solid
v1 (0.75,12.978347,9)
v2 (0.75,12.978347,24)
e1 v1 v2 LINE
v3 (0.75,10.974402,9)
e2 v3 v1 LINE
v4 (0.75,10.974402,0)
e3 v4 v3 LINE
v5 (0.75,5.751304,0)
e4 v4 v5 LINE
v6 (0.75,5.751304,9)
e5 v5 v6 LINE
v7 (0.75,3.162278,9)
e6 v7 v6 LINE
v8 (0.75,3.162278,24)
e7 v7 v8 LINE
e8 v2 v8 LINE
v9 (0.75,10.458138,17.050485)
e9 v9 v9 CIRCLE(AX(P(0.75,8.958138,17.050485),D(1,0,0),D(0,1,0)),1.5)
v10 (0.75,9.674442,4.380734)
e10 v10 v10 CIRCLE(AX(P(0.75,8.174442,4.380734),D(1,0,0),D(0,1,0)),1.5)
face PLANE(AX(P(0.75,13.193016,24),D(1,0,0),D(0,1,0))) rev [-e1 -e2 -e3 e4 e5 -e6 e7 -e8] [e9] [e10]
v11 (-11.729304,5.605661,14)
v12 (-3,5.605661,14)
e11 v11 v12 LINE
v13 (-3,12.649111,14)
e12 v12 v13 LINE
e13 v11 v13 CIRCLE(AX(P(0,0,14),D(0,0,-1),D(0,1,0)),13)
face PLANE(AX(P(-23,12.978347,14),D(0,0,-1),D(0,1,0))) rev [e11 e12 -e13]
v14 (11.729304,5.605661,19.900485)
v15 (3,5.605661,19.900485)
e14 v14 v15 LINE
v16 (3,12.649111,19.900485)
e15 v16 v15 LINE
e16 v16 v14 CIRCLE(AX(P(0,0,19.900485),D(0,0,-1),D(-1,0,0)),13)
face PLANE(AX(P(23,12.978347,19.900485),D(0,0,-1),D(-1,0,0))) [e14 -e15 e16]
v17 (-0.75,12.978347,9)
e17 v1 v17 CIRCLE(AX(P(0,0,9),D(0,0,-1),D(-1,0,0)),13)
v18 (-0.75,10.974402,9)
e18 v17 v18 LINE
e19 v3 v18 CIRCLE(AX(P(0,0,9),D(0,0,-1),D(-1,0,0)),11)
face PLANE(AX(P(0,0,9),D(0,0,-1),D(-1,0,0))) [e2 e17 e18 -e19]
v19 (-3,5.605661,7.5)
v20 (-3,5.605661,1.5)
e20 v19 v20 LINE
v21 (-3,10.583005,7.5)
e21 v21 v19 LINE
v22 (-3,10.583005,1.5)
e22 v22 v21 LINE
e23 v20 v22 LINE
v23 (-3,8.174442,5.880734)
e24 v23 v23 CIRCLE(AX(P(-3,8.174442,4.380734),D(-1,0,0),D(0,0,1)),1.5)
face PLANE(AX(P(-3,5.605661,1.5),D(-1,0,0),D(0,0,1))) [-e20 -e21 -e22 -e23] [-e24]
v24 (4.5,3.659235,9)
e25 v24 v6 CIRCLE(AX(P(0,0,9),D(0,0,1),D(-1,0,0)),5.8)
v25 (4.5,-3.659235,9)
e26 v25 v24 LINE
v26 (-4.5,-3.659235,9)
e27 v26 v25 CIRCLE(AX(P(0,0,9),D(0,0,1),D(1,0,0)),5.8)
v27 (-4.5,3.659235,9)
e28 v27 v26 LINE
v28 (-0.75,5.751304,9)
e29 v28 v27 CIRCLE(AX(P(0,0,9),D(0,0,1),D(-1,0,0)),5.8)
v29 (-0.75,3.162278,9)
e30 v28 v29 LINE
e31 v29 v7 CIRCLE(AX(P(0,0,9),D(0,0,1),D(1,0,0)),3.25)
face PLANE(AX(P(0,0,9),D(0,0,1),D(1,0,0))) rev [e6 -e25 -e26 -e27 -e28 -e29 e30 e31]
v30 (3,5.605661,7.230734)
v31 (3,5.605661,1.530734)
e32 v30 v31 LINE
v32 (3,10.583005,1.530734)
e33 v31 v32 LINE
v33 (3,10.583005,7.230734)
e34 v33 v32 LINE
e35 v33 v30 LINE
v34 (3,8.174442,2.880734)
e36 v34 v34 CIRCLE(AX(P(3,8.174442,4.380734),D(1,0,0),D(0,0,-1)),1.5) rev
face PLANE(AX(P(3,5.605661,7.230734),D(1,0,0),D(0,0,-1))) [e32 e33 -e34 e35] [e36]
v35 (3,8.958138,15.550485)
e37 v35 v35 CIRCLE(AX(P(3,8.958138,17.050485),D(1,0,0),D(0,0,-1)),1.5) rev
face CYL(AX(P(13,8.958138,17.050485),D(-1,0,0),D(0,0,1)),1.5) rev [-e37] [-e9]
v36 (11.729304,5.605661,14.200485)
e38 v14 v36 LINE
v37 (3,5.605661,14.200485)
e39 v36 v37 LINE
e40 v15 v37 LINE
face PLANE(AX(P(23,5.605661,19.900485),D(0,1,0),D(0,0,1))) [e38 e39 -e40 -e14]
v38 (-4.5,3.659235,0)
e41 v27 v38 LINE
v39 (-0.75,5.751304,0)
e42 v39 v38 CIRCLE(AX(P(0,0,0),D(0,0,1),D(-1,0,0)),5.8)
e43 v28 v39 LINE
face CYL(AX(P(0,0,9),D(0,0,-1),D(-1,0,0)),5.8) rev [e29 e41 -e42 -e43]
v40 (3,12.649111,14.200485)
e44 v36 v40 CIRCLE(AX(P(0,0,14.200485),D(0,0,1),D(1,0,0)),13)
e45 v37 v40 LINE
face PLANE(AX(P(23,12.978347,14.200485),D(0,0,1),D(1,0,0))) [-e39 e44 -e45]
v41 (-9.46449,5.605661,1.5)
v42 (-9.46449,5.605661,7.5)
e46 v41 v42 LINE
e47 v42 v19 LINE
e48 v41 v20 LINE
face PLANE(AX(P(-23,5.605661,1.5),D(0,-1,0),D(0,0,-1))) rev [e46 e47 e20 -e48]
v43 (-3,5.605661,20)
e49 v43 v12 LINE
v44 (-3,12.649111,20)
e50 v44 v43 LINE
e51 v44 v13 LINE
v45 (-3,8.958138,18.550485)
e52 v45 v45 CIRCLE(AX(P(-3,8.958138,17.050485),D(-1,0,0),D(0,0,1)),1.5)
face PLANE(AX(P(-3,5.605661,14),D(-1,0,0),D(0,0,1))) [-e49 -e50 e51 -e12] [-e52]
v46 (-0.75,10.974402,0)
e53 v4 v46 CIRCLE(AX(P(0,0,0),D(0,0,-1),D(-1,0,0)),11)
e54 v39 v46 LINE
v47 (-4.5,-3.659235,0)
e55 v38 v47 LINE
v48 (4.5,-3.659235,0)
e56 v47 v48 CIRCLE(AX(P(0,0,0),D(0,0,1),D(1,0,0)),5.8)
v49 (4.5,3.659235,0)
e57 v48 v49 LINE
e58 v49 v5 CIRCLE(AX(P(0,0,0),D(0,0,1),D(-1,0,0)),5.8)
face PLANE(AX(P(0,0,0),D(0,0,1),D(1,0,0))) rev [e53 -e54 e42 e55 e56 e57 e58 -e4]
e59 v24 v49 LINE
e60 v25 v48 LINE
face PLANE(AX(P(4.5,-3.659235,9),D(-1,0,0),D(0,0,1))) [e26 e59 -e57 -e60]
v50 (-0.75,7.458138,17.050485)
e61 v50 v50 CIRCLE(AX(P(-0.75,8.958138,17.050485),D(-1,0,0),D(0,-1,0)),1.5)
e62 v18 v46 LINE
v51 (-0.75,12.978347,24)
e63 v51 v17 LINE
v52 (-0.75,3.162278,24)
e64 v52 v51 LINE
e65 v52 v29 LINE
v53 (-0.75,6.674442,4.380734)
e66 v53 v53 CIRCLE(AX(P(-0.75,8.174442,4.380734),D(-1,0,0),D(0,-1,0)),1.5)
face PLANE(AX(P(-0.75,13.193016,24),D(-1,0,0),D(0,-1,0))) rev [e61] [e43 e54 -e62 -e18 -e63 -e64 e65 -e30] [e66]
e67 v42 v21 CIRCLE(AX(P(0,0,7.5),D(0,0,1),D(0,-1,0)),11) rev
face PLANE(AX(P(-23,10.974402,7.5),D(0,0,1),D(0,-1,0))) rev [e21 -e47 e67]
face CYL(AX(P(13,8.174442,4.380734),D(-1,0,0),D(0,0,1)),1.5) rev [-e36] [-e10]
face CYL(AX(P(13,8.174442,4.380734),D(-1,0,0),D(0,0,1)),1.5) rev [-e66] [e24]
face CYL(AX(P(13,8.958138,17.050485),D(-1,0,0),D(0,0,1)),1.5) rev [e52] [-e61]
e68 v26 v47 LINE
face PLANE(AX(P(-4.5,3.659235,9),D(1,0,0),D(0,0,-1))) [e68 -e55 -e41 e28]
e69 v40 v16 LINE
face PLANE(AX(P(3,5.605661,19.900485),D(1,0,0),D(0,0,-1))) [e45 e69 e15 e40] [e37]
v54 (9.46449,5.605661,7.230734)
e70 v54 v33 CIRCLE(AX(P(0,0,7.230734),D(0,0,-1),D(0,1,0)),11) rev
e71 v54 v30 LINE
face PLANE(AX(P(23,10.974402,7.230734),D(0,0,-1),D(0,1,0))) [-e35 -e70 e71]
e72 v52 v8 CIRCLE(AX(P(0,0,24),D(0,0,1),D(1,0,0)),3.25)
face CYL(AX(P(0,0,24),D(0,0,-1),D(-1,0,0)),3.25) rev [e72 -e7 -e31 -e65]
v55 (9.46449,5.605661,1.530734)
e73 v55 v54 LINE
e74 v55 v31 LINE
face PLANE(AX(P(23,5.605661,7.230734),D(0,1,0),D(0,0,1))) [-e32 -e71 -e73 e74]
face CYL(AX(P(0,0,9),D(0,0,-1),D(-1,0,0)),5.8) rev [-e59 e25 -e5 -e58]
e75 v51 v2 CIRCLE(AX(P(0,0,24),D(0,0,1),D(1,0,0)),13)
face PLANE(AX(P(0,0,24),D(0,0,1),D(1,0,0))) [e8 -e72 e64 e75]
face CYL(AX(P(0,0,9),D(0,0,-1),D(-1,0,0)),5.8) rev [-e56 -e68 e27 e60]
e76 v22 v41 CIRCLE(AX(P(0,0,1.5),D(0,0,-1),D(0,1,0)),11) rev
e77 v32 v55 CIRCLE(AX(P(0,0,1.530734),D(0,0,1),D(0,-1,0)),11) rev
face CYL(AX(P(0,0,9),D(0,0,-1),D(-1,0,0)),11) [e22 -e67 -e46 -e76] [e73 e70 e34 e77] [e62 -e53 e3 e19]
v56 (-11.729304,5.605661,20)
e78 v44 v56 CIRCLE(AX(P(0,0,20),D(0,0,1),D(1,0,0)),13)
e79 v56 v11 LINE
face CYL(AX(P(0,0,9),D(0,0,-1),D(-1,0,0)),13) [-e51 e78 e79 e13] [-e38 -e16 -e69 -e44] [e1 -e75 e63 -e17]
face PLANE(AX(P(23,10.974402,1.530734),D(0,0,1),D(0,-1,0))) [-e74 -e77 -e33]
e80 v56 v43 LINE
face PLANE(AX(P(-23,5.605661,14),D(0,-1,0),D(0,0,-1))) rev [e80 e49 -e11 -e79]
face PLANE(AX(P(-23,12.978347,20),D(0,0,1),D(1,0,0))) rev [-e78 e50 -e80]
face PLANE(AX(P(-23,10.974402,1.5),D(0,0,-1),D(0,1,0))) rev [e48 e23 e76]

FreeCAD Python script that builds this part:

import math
import FreeCAD as App
import Part
import Sketcher
from FreeCAD import Vector
Q = App.Units.Quantity


def add_polygon(sketch, points):
    """Adds a closed chain of lines whose ends are joined by coincident constraints."""
    first, n = sketch.GeometryCount, len(points)
    for a, b in zip(points, points[1:] + points[:1]):
        sketch.addGeometry(Part.LineSegment(App.Vector(*a, 0), App.Vector(*b, 0)), False)
    for i in range(n):
        sketch.addConstraint(Sketcher.Constraint("Coincident", first + i, 2, first + (i + 1) % n, 1))

doc = App.newDocument("Part")
body = doc.addObject("PartDesign::Body", "Body")

# Sketch on XY plane
sketch1 = doc.addObject("Sketcher::SketchObject", "Sketch")
body.addObject(sketch1)
sketch1.AttachmentSupport = (doc.XY_Plane, [""])
sketch1.MapMode = "FlatFace"
sketch1.addGeometry(Part.Circle(Vector(0, 0, 0), Vector(0, 0, 1), 13), False)
sketch1.addGeometry(Part.LineSegment(Vector(-4.5, -3.659235, 0), Vector(-4.5, 3.659235, 0)), False)
sketch1.addGeometry(Part.ArcOfCircle(Part.Circle(Vector(0, 0, 0), Vector(0, 0, 1), 5.8), math.radians(39.116744), math.radians(140.883256)), False)
sketch1.addGeometry(Part.LineSegment(Vector(4.5, 3.659235, 0), Vector(4.5, -3.659235, 0)), False)
sketch1.addGeometry(Part.ArcOfCircle(Part.Circle(Vector(0, 0, 0), Vector(0, 0, 1), 5.8), math.radians(-140.883256), math.radians(-39.116744)), False)
sketch1.addConstraint(Sketcher.Constraint("Coincident", 1, 2, 2, 2))
sketch1.addConstraint(Sketcher.Constraint("Coincident", 2, 1, 3, 1))
sketch1.addConstraint(Sketcher.Constraint("Coincident", 3, 2, 4, 2))
sketch1.addConstraint(Sketcher.Constraint("Coincident", 4, 1, 1, 1))
sketch1.addConstraint(Sketcher.Constraint("Vertical", 1))
sketch1.addConstraint(Sketcher.Constraint("Vertical", 3))
sketch1.addConstraint(Sketcher.Constraint("Coincident", 0, 3, -1, 1))
sketch1.addConstraint(Sketcher.Constraint("Coincident", 2, 3, -1, 1))
sketch1.addConstraint(Sketcher.Constraint("Coincident", 4, 3, -1, 1))
sketch1.addConstraint(Sketcher.Constraint("Equal", 2, 4))
sketch1.addConstraint(Sketcher.Constraint("Horizontal", 1, 2, 2, 1))
sketch1.addConstraint(Sketcher.Constraint("Diameter", 0, Q("26 mm")))
sketch1.addConstraint(Sketcher.Constraint("Radius", 2, Q("5.8 mm")))
sketch1.addConstraint(Sketcher.Constraint("DistanceX", 1, 2, 2, 1, Q("9 mm")))
pad1 = doc.addObject("PartDesign::Pad", "Pad")
body.addObject(pad1)
pad1.Profile = sketch1
pad1.Length = 9

# Sketch on XY plane
sketch2 = doc.addObject("Sketcher::SketchObject", "Sketch001")
body.addObject(sketch2)
sketch2.AttachmentSupport = (doc.XY_Plane, [""])
sketch2.MapMode = "FlatFace"
sketch2.AttachmentOffset = App.Placement(Vector(0, 0, 9), App.Rotation())
sketch2.addGeometry(Part.Circle(Vector(0, 0, 0), Vector(0, 0, 1), 13), False)
sketch2.addGeometry(Part.Circle(Vector(0, 0, 0), Vector(0, 0, 1), 3.25), False)
sketch2.addConstraint(Sketcher.Constraint("Coincident", 0, 3, -1, 1))
sketch2.addConstraint(Sketcher.Constraint("Coincident", 1, 3, -1, 1))
sketch2.addConstraint(Sketcher.Constraint("Diameter", 0, Q("26 mm")))
sketch2.addConstraint(Sketcher.Constraint("Diameter", 1, Q("6.5 mm")))
pad2 = doc.addObject("PartDesign::Pad", "Pad001")
body.addObject(pad2)
pad2.Profile = sketch2
pad2.Length = 15

# Sketch on XY plane
sketch3 = doc.addObject("Sketcher::SketchObject", "Sketch002")
body.addObject(sketch3)
sketch3.AttachmentSupport = (doc.XY_Plane, [""])
sketch3.MapMode = "FlatFace"
add_polygon(sketch3, [(0.75, 13.193016), (0.75, 1.56659), (-0.75, 1.56659), (-0.75, 13.193016)])  # lines 0-3
sketch3.addConstraint(Sketcher.Constraint("Vertical", 0))
sketch3.addConstraint(Sketcher.Constraint("Horizontal", 1))
sketch3.addConstraint(Sketcher.Constraint("Vertical", 2))
sketch3.addConstraint(Sketcher.Constraint("Horizontal", 3))
sketch3.addConstraint(Sketcher.Constraint("DistanceX", 1, 2, 1, 1, Q("1.5 mm")))
sketch3.addConstraint(Sketcher.Constraint("DistanceX", -1, 1, 0, 2, Q("0.75 mm")))
sketch3.addConstraint(Sketcher.Constraint("DistanceY", 0, 2, 0, 1, Q("11.626427 mm")))
sketch3.addConstraint(Sketcher.Constraint("DistanceY", -1, 1, 0, 2, Q("1.56659 mm")))
pocket1 = doc.addObject("PartDesign::Pocket", "Pocket")
body.addObject(pocket1)
pocket1.Profile = sketch3
pocket1.Type = "ThroughAll"
pocket1.Reversed = True

# Sketch on XY plane
sketch4 = doc.addObject("Sketcher::SketchObject", "Sketch003")
body.addObject(sketch4)
sketch4.AttachmentSupport = (doc.XY_Plane, [""])
sketch4.MapMode = "FlatFace"
sketch4.addGeometry(Part.Circle(Vector(0, 0, 0), Vector(0, 0, 1), 16.638235), False)
sketch4.addGeometry(Part.Circle(Vector(0, 0, 0), Vector(0, 0, 1), 11), False)
sketch4.addConstraint(Sketcher.Constraint("Coincident", 0, 3, -1, 1))
sketch4.addConstraint(Sketcher.Constraint("Coincident", 1, 3, -1, 1))
sketch4.addConstraint(Sketcher.Constraint("Diameter", 1, Q("22 mm")))
sketch4.addConstraint(Sketcher.Constraint("Diameter", 0, Q("33.27647 mm")))
pocket2 = doc.addObject("PartDesign::Pocket", "Pocket001")
body.addObject(pocket2)
pocket2.Profile = sketch4
pocket2.Length = 9
pocket2.Reversed = True

# Sketch on YZ plane
sketch5 = doc.addObject("Sketcher::SketchObject", "Sketch004")
body.addObject(sketch5)
sketch5.AttachmentSupport = (doc.YZ_Plane, [""])
sketch5.MapMode = "FlatFace"
sketch5.AttachmentOffset = App.Placement(Vector(0, 0, -3), App.Rotation())
add_polygon(sketch5, [(10.974402, 7.5), (5.605661, 7.5), (5.605661, 1.5), (10.974402, 1.5)])  # lines 0-3
add_polygon(sketch5, [(12.978347, 20), (5.605661, 20), (5.605661, 14), (12.978347, 14)])  # lines 4-7
sketch5.addConstraint(Sketcher.Constraint("Horizontal", 0))
sketch5.addConstraint(Sketcher.Constraint("Vertical", 1))
sketch5.addConstraint(Sketcher.Constraint("Horizontal", 2))
sketch5.addConstraint(Sketcher.Constraint("Vertical", 3))
sketch5.addConstraint(Sketcher.Constraint("Horizontal", 4))
sketch5.addConstraint(Sketcher.Constraint("Vertical", 5))
sketch5.addConstraint(Sketcher.Constraint("Horizontal", 6))
sketch5.addConstraint(Sketcher.Constraint("Vertical", 7))
sketch5.addConstraint(Sketcher.Constraint("Vertical", 1, 2, 4, 2))
sketch5.addConstraint(Sketcher.Constraint("Equal", 3, 5))
sketch5.addConstraint(Sketcher.Constraint("DistanceY", 1, 2, 1, 1, Q("6 mm")))
sketch5.addConstraint(Sketcher.Constraint("DistanceY", -1, 1, 4, 2, Q("20 mm")))
sketch5.addConstraint(Sketcher.Constraint("DistanceY", -1, 1, 0, 2, Q("7.5 mm")))
sketch5.addConstraint(Sketcher.Constraint("DistanceX", 0, 2, 0, 1, Q("5.368741 mm")))
sketch5.addConstraint(Sketcher.Constraint("DistanceX", 4, 2, 4, 1, Q("7.372686 mm")))
sketch5.addConstraint(Sketcher.Constraint("DistanceX", -1, 1, 0, 2, Q("5.605661 mm")))
pocket3 = doc.addObject("PartDesign::Pocket", "Pocket002")
body.addObject(pocket3)
pocket3.Profile = sketch5
pocket3.Length = 20

# Sketch on YZ plane
sketch6 = doc.addObject("Sketcher::SketchObject", "Sketch005")
body.addObject(sketch6)
sketch6.AttachmentSupport = (doc.YZ_Plane, [""])
sketch6.MapMode = "FlatFace"
sketch6.AttachmentOffset = App.Placement(Vector(0, 0, -3), App.Rotation())
sketch6.addGeometry(Part.Circle(Vector(8.174442, 4.380734, 0), Vector(0, 0, 1), 1.5), False)
sketch6.addGeometry(Part.Circle(Vector(8.958138, 17.050485, 0), Vector(0, 0, 1), 1.5), False)
sketch6.addConstraint(Sketcher.Constraint("Equal", 0, 1))
sketch6.addConstraint(Sketcher.Constraint("Diameter", 0, Q("3 mm")))
sketch6.addConstraint(Sketcher.Constraint("DistanceX", -1, 1, 1, 3, Q("8.958138 mm")))
sketch6.addConstraint(Sketcher.Constraint("DistanceY", 0, 3, 1, 3, Q("12.669751 mm")))
sketch6.addConstraint(Sketcher.Constraint("DistanceX", -1, 1, 0, 3, Q("8.174442 mm")))
sketch6.addConstraint(Sketcher.Constraint("DistanceY", -1, 1, 0, 3, Q("4.380734 mm")))
pocket4 = doc.addObject("PartDesign::Pocket", "Pocket003")
body.addObject(pocket4)
pocket4.Profile = sketch6
pocket4.Type = "ThroughAll"
pocket4.Reversed = True

# Sketch on YZ plane
sketch7 = doc.addObject("Sketcher::SketchObject", "Sketch006")
body.addObject(sketch7)
sketch7.AttachmentSupport = (doc.YZ_Plane, [""])
sketch7.MapMode = "FlatFace"
sketch7.AttachmentOffset = App.Placement(Vector(0, 0, 3), App.Rotation())
add_polygon(sketch7, [(12.978347, 19.900485), (5.605661, 19.900485), (5.605661, 14.200485), (12.978347, 14.200485)])  # lines 0-3
add_polygon(sketch7, [(10.974402, 7.230734), (5.605661, 7.230734), (5.605661, 1.530734), (10.974402, 1.530734)])  # lines 4-7
sketch7.addConstraint(Sketcher.Constraint("Horizontal", 0))
sketch7.addConstraint(Sketcher.Constraint("Vertical", 1))
sketch7.addConstraint(Sketcher.Constraint("Horizontal", 2))
sketch7.addConstraint(Sketcher.Constraint("Vertical", 3))
sketch7.addConstraint(Sketcher.Constraint("Horizontal", 4))
sketch7.addConstraint(Sketcher.Constraint("Vertical", 5))
sketch7.addConstraint(Sketcher.Constraint("Horizontal", 6))
sketch7.addConstraint(Sketcher.Constraint("Vertical", 7))
sketch7.addConstraint(Sketcher.Constraint("Vertical", 1, 2, 4, 2))
sketch7.addConstraint(Sketcher.Constraint("Equal", 3, 5))
sketch7.addConstraint(Sketcher.Constraint("DistanceY", 1, 2, 1, 1, Q("5.7 mm")))
sketch7.addConstraint(Sketcher.Constraint("DistanceX", 4, 2, 4, 1, Q("5.368741 mm")))
sketch7.addConstraint(Sketcher.Constraint("DistanceX", 0, 2, 0, 1, Q("7.372686 mm")))
sketch7.addConstraint(Sketcher.Constraint("DistanceX", -1, 1, 0, 2, Q("5.605661 mm")))
sketch7.addConstraint(Sketcher.Constraint("DistanceY", 4, 2, 1, 2, Q("6.969751 mm")))
sketch7.addConstraint(Sketcher.Constraint("DistanceY", -1, 1, 0, 2, Q("19.900485 mm")))
pocket5 = doc.addObject("PartDesign::Pocket", "Pocket004")
body.addObject(pocket5)
pocket5.Profile = sketch7
pocket5.Length = 20
pocket5.Reversed = True

doc.recompute()
